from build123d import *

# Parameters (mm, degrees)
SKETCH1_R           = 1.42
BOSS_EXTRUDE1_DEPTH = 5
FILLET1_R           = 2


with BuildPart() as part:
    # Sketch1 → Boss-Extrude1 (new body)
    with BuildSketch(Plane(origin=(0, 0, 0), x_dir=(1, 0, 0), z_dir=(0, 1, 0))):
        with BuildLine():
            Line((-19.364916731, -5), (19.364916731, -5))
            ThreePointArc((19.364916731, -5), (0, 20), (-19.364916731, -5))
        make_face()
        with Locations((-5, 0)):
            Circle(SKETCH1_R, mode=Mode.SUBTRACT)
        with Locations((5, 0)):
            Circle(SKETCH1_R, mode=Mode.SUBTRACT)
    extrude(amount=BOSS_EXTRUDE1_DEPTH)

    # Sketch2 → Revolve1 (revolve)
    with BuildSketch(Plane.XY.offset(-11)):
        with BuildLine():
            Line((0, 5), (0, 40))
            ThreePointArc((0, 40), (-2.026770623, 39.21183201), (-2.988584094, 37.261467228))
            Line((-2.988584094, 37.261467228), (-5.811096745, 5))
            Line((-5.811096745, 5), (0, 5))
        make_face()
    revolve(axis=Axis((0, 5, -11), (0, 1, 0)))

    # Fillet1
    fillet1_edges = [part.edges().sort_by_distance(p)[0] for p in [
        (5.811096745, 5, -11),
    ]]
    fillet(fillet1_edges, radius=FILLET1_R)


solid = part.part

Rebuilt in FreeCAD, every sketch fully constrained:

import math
import FreeCAD as App
import Part
import Sketcher
Q = App.Units.Quantity


def edges_at(feature, points):
    """Names of the edges that pass closest to the given points."""
    edges = feature.Shape.Edges
    near = lambda p: min(range(len(edges)), key=lambda i: edges[i].distToShape(Part.Vertex(*p))[0])
    return sorted({f"Edge{near(p) + 1}" for p in points})

doc = App.newDocument("Part")
params = doc.addObject("Spreadsheet::Sheet", "Params")
for row, (alias, value) in enumerate([
    ("sketch1_radius", "20 mm"),
    ("sketch1_diameter", "2.84 mm"),
    ("pad1_length", "5 mm"),
    ("sketch2_radius", "3 mm"),
    ("sketch2_height", "35 mm"),
    ("revolution_angle", "360 deg"),
    ("fillet_radius", "2 mm"),
], start=1):
    params.set(f"A{row}", alias)
    params.set(f"B{row}", "=" + value)
    params.setAlias(f"B{row}", alias)

body = doc.addObject("PartDesign::Body", "Body")

sketch1 = body.newObject("Sketcher::SketchObject", "Sketch")
sketch1.AttachmentSupport = (doc.getObject("XZ_Plane"), [""])
sketch1.MapMode = "FlatFace"
sketch1.addGeometry([
    Part.LineSegment(App.Vector(-19.4, 5, 0), App.Vector(19.4, 5, 0)),
    Part.ArcOfCircle(Part.Circle(App.Vector(0, 0, 0), App.Vector(0, 0, 1), 20), math.radians(166), math.radians(374)),
    Part.Circle(App.Vector(-5, 0, 0), App.Vector(0, 0, 1), 1.4),
    Part.Circle(App.Vector(5, 0, 0), App.Vector(0, 0, 1), 1.4),
], False)
sketch1.addConstraint([
    Sketcher.Constraint("Coincident", 0, 1, 1, 1),
    Sketcher.Constraint("Coincident", 1, 2, 0, 2),
    Sketcher.Constraint("Horizontal", 0),
    Sketcher.Constraint("Coincident", 1, 3, -1, 1),
    Sketcher.Constraint("Equal", 2, 3),
    Sketcher.Constraint("Symmetric", 2, 3, 3, 3, -1, 1),
    Sketcher.Constraint("PointOnObject", 2, 3, -1),
    Sketcher.Constraint("Radius", 1, Q("20 mm")),
    Sketcher.Constraint("Diameter", 2, Q("2.84 mm")),
    Sketcher.Constraint("DistanceX", 2, 3, -1, 1, Q("5 mm")),
    Sketcher.Constraint("DistanceY", -1, 1, 0, 1, Q("5 mm")),
])
sketch1.setExpression("Constraints[7]", "Params.sketch1_radius")
sketch1.setExpression("Constraints[8]", "Params.sketch1_diameter")
pad1 = body.newObject("PartDesign::Pad", "Pad")
pad1.Profile = sketch1
pad1.setExpression("Length", "Params.pad1_length")
pad1.Reversed = True

sketch2 = body.newObject("Sketcher::SketchObject", "Sketch001")
sketch2.AttachmentSupport = (doc.getObject("XY_Plane"), [""])
sketch2.MapMode = "FlatFace"
sketch2.AttachmentOffset = App.Placement(App.Vector(0, 0, -11), App.Rotation())
sketch2.addGeometry([
    Part.LineSegment(App.Vector(0, 5, 0), App.Vector(0, 40, 0)),
    Part.ArcOfCircle(Part.Circle(App.Vector(0, 37, 0), App.Vector(0, 0, 1), 3), math.radians(90), math.radians(175)),
    Part.LineSegment(App.Vector(-3, 37.3, 0), App.Vector(-5.8, 5, 0)),
    Part.LineSegment(App.Vector(-5.8, 5, 0), App.Vector(0, 5, 0)),
], False)
sketch2.addConstraint([
    Sketcher.Constraint("Coincident", 0, 2, 1, 1),
    Sketcher.Constraint("Tangent", 1, 2, 2, 1),
    Sketcher.Constraint("Coincident", 2, 2, 3, 1),
    Sketcher.Constraint("Coincident", 3, 2, 0, 1),
    Sketcher.Constraint("Vertical", 0),
    Sketcher.Constraint("Horizontal", 3),
    Sketcher.Constraint("PointOnObject", 1, 3, -2),
    Sketcher.Constraint("PointOnObject", 0, 2, -2),
    Sketcher.Constraint("Radius", 1, Q("3 mm")),
    Sketcher.Constraint("DistanceY", 0, 1, 0, 2, Q("35 mm")),
    Sketcher.Constraint("Angle", 2, Q("-95 deg")),
    Sketcher.Constraint("DistanceY", -1, 1, 1, 3, Q("37 mm")),
])
sketch2.setExpression("Constraints[8]", "Params.sketch2_radius")
sketch2.setExpression("Constraints[9]", "Params.sketch2_height")
revolution = body.newObject("PartDesign::Revolution", "Revolution")
revolution.Profile = sketch2
revolution.ReferenceAxis = (sketch2, ["V_Axis"])
revolution.setExpression("Angle", "Params.revolution_angle")
doc.recompute()

fillet = body.newObject("PartDesign::Fillet", "Fillet")
fillet.Base = (revolution, edges_at(revolution, [(5.811, 5, -11)]))
fillet.setExpression("Radius", "Params.fillet_radius")

doc.recompute()
